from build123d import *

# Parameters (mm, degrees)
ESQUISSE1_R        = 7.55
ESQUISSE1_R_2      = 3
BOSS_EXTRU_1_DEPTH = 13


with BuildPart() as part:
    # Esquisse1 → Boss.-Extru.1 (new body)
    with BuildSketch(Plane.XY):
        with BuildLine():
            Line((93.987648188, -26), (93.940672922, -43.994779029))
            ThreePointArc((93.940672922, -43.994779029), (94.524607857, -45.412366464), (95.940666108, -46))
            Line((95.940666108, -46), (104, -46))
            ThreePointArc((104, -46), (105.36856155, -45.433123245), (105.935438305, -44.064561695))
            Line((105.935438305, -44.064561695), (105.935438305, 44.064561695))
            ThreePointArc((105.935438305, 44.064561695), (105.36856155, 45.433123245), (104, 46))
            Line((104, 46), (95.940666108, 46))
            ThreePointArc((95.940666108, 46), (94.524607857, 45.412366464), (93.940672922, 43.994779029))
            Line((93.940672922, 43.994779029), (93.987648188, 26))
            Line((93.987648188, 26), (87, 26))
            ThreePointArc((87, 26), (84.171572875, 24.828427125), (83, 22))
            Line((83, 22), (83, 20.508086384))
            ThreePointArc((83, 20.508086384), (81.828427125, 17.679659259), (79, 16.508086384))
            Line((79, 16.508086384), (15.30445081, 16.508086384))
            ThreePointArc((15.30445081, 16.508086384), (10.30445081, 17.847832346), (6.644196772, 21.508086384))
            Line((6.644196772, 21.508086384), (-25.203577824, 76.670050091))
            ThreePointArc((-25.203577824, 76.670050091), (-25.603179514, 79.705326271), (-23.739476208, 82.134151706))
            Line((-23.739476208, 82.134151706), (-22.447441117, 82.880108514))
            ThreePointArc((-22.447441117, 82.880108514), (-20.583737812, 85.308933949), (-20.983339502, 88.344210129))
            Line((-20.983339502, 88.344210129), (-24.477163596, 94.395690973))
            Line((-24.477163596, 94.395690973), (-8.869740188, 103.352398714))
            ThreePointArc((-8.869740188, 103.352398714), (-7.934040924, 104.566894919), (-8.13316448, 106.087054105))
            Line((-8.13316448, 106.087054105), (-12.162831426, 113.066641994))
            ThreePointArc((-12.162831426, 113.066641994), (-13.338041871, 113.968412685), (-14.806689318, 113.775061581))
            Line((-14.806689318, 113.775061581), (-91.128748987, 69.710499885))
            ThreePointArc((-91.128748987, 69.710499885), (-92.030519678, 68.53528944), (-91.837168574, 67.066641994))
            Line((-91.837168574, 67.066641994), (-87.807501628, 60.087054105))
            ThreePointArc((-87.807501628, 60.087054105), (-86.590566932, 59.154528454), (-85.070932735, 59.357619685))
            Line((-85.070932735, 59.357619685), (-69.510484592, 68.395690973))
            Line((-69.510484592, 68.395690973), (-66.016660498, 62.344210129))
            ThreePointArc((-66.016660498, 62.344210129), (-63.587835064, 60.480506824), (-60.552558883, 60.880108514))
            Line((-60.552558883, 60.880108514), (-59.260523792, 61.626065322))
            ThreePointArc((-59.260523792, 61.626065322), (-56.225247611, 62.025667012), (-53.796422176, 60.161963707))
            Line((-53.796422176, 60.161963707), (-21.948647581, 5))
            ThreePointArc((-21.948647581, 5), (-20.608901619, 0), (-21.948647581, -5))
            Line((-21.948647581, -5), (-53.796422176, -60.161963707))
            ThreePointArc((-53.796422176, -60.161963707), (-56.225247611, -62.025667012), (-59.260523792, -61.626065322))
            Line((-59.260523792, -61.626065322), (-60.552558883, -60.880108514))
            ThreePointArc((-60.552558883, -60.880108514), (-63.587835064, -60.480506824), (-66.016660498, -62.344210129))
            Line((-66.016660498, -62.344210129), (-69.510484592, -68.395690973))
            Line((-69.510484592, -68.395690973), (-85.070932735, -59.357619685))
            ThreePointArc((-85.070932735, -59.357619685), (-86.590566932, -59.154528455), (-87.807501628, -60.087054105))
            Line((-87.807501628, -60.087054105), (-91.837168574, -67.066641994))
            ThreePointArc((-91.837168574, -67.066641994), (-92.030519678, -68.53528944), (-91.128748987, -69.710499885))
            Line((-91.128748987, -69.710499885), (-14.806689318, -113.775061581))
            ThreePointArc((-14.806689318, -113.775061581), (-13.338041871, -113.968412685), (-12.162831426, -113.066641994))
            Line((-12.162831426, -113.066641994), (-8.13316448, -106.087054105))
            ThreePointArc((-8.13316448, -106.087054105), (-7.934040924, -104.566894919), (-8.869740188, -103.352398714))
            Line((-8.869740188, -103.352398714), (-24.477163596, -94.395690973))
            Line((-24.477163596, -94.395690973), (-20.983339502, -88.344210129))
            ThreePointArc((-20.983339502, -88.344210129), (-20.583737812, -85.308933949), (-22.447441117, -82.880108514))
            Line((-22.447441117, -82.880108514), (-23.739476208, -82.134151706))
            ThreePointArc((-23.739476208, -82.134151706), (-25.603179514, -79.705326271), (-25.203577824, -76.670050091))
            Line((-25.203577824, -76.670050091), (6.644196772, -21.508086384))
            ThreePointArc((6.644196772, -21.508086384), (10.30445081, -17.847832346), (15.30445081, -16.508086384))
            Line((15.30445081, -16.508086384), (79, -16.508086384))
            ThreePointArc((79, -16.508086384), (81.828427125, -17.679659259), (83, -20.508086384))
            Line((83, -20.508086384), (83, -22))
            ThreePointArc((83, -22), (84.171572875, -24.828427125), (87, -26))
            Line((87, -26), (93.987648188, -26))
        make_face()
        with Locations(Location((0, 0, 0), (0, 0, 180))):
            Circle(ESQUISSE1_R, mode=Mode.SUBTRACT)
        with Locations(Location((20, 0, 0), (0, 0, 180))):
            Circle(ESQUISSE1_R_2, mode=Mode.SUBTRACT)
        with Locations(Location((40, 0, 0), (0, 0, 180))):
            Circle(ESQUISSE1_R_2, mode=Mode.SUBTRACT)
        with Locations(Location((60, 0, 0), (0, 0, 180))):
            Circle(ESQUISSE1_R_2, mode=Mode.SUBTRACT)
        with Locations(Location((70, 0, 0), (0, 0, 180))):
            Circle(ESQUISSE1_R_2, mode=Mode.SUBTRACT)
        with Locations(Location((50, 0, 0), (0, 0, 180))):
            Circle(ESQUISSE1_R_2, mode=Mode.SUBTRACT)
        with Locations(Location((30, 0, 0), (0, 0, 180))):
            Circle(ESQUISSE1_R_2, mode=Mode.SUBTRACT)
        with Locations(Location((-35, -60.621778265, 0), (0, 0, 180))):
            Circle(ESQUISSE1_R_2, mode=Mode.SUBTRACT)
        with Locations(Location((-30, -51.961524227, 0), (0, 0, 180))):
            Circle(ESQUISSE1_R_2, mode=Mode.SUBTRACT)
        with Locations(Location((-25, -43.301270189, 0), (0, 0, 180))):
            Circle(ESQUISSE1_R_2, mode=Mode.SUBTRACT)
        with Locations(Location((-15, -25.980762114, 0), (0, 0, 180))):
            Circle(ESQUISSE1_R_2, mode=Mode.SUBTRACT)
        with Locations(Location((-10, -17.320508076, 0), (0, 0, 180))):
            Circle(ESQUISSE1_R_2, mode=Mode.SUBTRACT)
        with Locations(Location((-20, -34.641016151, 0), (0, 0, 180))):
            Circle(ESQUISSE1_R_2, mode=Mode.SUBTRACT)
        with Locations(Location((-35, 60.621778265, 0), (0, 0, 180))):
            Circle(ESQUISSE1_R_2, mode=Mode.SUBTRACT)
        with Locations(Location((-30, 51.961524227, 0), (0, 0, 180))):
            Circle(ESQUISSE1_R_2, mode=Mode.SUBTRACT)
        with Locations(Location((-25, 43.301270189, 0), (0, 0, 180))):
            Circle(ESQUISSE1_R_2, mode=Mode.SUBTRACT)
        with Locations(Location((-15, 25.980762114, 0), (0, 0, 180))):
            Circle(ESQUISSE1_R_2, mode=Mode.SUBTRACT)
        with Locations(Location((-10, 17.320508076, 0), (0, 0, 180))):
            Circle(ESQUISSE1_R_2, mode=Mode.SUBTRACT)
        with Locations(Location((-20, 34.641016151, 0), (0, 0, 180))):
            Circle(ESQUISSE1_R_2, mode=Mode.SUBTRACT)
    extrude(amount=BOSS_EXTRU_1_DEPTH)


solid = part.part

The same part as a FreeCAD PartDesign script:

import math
import FreeCAD as App
import Part
import Sketcher
from FreeCAD import Vector
Q = App.Units.Quantity

doc = App.newDocument("Part")
params = doc.addObject("Spreadsheet::Sheet", "Params")
for row, (alias, value) in enumerate([
    ("sketch1_diameter", "6 mm"),
    ("sketch1_radius", "2 mm"),
    ("sketch1_radius2", "4 mm"),
    ("sketch1_radius3", "10 mm"),
    ("sketch1_diameter2", "15.1 mm"),
    ("pad1_length", "13 mm"),
], start=1):
    params.set(f"A{row}", alias)
    params.set(f"B{row}", "=" + value)
    params.setAlias(f"B{row}", alias)

body = doc.addObject("PartDesign::Body", "Body")

# Sketch on XY plane
sketch1 = body.newObject("Sketcher::SketchObject", "Sketch")
sketch1.AttachmentSupport = (doc.getObject("XY_Plane"), [""])
sketch1.MapMode = "FlatFace"
sketch1.addGeometry([
    Part.LineSegment(Vector(93.987648, -26, 0), Vector(93.940673, -43.994779, 0)),  # 0
    Part.ArcOfCircle(Part.Circle(Vector(95.940666, -44, 0), Vector(0, 0, 1), 2), math.radians(179.85043), math.radians(270)),  # 1
    Part.LineSegment(Vector(95.940666, -46, 0), Vector(104, -46, 0)),  # 2
    Part.ArcOfCircle(Part.Circle(Vector(104, -44.064562, 0), Vector(0, 0, 1), 1.935438), math.radians(-90), math.radians(0)),  # 3
    Part.LineSegment(Vector(105.935438, -44.064562, 0), Vector(105.935438, 44.064562, 0)),  # 4
    Part.ArcOfCircle(Part.Circle(Vector(104, 44.064562, 0), Vector(0, 0, 1), 1.935438), math.radians(0), math.radians(90)),  # 5
    Part.LineSegment(Vector(104, 46, 0), Vector(95.940666, 46, 0)),  # 6
    Part.ArcOfCircle(Part.Circle(Vector(95.940666, 44, 0), Vector(0, 0, 1), 2), math.radians(90), math.radians(180.14957)),  # 7
    Part.LineSegment(Vector(93.940673, 43.994779, 0), Vector(93.987648, 26, 0)),  # 8
    Part.LineSegment(Vector(93.987648, 26, 0), Vector(87, 26, 0)),  # 9
    Part.ArcOfCircle(Part.Circle(Vector(87, 22, 0), Vector(0, 0, 1), 4), math.radians(90), math.radians(180)),  # 10
    Part.LineSegment(Vector(83, 22, 0), Vector(83, 20.508086, 0)),  # 11
    Part.ArcOfCircle(Part.Circle(Vector(79, 20.508086, 0), Vector(0, 0, 1), 4), math.radians(-90), math.radians(0)),  # 12
    Part.LineSegment(Vector(79, 16.508086, 0), Vector(15.304451, 16.508086, 0)),  # 13
    Part.ArcOfCircle(Part.Circle(Vector(15.304451, 26.508086, 0), Vector(0, 0, 1), 10), math.radians(-150), math.radians(-90)),  # 14
    Part.LineSegment(Vector(6.644197, 21.508086, 0), Vector(-25.203578, 76.67005, 0)),  # 15
    Part.ArcOfCircle(Part.Circle(Vector(-21.739476, 78.67005, 0), Vector(0, 0, 1), 4), math.radians(120), math.radians(210)),  # 16
    Part.LineSegment(Vector(-23.739476, 82.134152, 0), Vector(-22.447441, 82.880109, 0)),  # 17
    Part.ArcOfCircle(Part.Circle(Vector(-24.447441, 86.34421, 0), Vector(0, 0, 1), 4), math.radians(-60), math.radians(30)),  # 18
    Part.LineSegment(Vector(-20.98334, 88.34421, 0), Vector(-24.477164, 94.395691, 0)),  # 19
    Part.LineSegment(Vector(-24.477164, 94.395691, 0), Vector(-8.86974, 103.352399, 0)),  # 20
    Part.ArcOfCircle(Part.Circle(Vector(-9.865215, 105.087054, 0), Vector(0, 0, 1), 2), math.radians(-60.14957), math.radians(30)),  # 21
    Part.LineSegment(Vector(-8.133164, 106.087054, 0), Vector(-12.162831, 113.066642, 0)),  # 22
    Part.ArcOfCircle(Part.Circle(Vector(-13.83897, 112.098923, 0), Vector(0, 0, 1), 1.935438), math.radians(30), math.radians(120)),  # 23
    Part.LineSegment(Vector(-14.806689, 113.775062, 0), Vector(-91.128749, 69.7105, 0)),  # 24
    Part.ArcOfCircle(Part.Circle(Vector(-90.16103, 68.034361, 0), Vector(0, 0, 1), 1.935438), math.radians(120), math.radians(210)),  # 25
    Part.LineSegment(Vector(-91.837169, 67.066642, 0), Vector(-87.807502, 60.087054, 0)),  # 26
    Part.ArcOfCircle(Part.Circle(Vector(-86.075451, 61.087054, 0), Vector(0, 0, 1), 2), math.radians(-150), math.radians(-59.85043)),  # 27
    Part.LineSegment(Vector(-85.070933, 59.35762, 0), Vector(-69.510485, 68.395691, 0)),  # 28
    Part.LineSegment(Vector(-69.510485, 68.395691, 0), Vector(-66.01666, 62.34421, 0)),  # 29
    Part.ArcOfCircle(Part.Circle(Vector(-62.552559, 64.34421, 0), Vector(0, 0, 1), 4), math.radians(-150), math.radians(-60)),  # 30
    Part.LineSegment(Vector(-60.552559, 60.880109, 0), Vector(-59.260524, 61.626065, 0)),  # 31
    Part.ArcOfCircle(Part.Circle(Vector(-57.260524, 58.161964, 0), Vector(0, 0, 1), 4), math.radians(30), math.radians(120)),  # 32
    Part.LineSegment(Vector(-53.796422, 60.161964, 0), Vector(-21.948648, 5, 0)),  # 33
    Part.ArcOfCircle(Part.Circle(Vector(-30.608902, 0, 0), Vector(0, 0, 1), 10), math.radians(-30), math.radians(30)),  # 34
    Part.LineSegment(Vector(-21.948648, -5, 0), Vector(-53.796422, -60.161964, 0)),  # 35
    Part.ArcOfCircle(Part.Circle(Vector(-57.260524, -58.161964, 0), Vector(0, 0, 1), 4), math.radians(-120), math.radians(-30)),  # 36
    Part.LineSegment(Vector(-59.260524, -61.626065, 0), Vector(-60.552559, -60.880109, 0)),  # 37
    Part.ArcOfCircle(Part.Circle(Vector(-62.552559, -64.34421, 0), Vector(0, 0, 1), 4), math.radians(60), math.radians(150)),  # 38
    Part.LineSegment(Vector(-66.01666, -62.34421, 0), Vector(-69.510485, -68.395691, 0)),  # 39
    Part.LineSegment(Vector(-69.510485, -68.395691, 0), Vector(-85.070933, -59.35762, 0)),  # 40
    Part.ArcOfCircle(Part.Circle(Vector(-86.075451, -61.087054, 0), Vector(0, 0, 1), 2), math.radians(59.85043), math.radians(150)),  # 41
    Part.LineSegment(Vector(-87.807502, -60.087054, 0), Vector(-91.837169, -67.066642, 0)),  # 42
    Part.ArcOfCircle(Part.Circle(Vector(-90.16103, -68.034361, 0), Vector(0, 0, 1), 1.935438), math.radians(150), math.radians(240)),  # 43
    Part.LineSegment(Vector(-91.128749, -69.7105, 0), Vector(-14.806689, -113.775062, 0)),  # 44
    Part.ArcOfCircle(Part.Circle(Vector(-13.83897, -112.098923, 0), Vector(0, 0, 1), 1.935438), math.radians(-120), math.radians(-30)),  # 45
    Part.LineSegment(Vector(-12.162831, -113.066642, 0), Vector(-8.133164, -106.087054, 0)),  # 46
    Part.ArcOfCircle(Part.Circle(Vector(-9.865215, -105.087054, 0), Vector(0, 0, 1), 2), math.radians(-30), math.radians(60.14957)),  # 47
    Part.LineSegment(Vector(-8.86974, -103.352399, 0), Vector(-24.477164, -94.395691, 0)),  # 48
    Part.LineSegment(Vector(-24.477164, -94.395691, 0), Vector(-20.98334, -88.34421, 0)),  # 49
    Part.ArcOfCircle(Part.Circle(Vector(-24.447441, -86.34421, 0), Vector(0, 0, 1), 4), math.radians(-30), math.radians(60)),  # 50
    Part.LineSegment(Vector(-22.447441, -82.880109, 0), Vector(-23.739476, -82.134152, 0)),  # 51
    Part.ArcOfCircle(Part.Circle(Vector(-21.739476, -78.67005, 0), Vector(0, 0, 1), 4), math.radians(150), math.radians(240)),  # 52
    Part.LineSegment(Vector(-25.203578, -76.67005, 0), Vector(6.644197, -21.508086, 0)),  # 53
    Part.ArcOfCircle(Part.Circle(Vector(15.304451, -26.508086, 0), Vector(0, 0, 1), 10), math.radians(90), math.radians(150)),  # 54
    Part.LineSegment(Vector(15.304451, -16.508086, 0), Vector(79, -16.508086, 0)),  # 55
    Part.ArcOfCircle(Part.Circle(Vector(79, -20.508086, 0), Vector(0, 0, 1), 4), math.radians(0), math.radians(90)),  # 56
    Part.LineSegment(Vector(83, -20.508086, 0), Vector(83, -22, 0)),  # 57
    Part.ArcOfCircle(Part.Circle(Vector(87, -22, 0), Vector(0, 0, 1), 4), math.radians(180), math.radians(270)),  # 58
    Part.LineSegment(Vector(87, -26, 0), Vector(93.987648, -26, 0)),  # 59
    Part.Circle(Vector(-35, -60.621778, 0), Vector(0, 0, 1), 3),  # 60
    Part.Circle(Vector(-30, -51.961524, 0), Vector(0, 0, 1), 3),  # 61
    Part.Circle(Vector(-25, -43.30127, 0), Vector(0, 0, 1), 3),  # 62
    Part.Circle(Vector(-20, -34.641016, 0), Vector(0, 0, 1), 3),  # 63
    Part.Circle(Vector(-15, -25.980762, 0), Vector(0, 0, 1), 3),  # 64
    Part.Circle(Vector(-10, -17.320508, 0), Vector(0, 0, 1), 3),  # 65
    Part.Circle(Vector(0, 0, 0), Vector(0, 0, 1), 7.55),  # 66
    Part.Circle(Vector(20, 0, 0), Vector(0, 0, 1), 3),  # 67
    Part.Circle(Vector(30, 0, 0), Vector(0, 0, 1), 3),  # 68
    Part.Circle(Vector(40, 0, 0), Vector(0, 0, 1), 3),  # 69
    Part.Circle(Vector(50, 0, 0), Vector(0, 0, 1), 3),  # 70
    Part.Circle(Vector(60, 0, 0), Vector(0, 0, 1), 3),  # 71
    Part.Circle(Vector(70, 0, 0), Vector(0, 0, 1), 3),  # 72
    Part.Circle(Vector(-15, 25.980762, 0), Vector(0, 0, 1), 3),  # 73
    Part.Circle(Vector(-10, 17.320508, 0), Vector(0, 0, 1), 3),  # 74
    Part.Circle(Vector(-25, 43.30127, 0), Vector(0, 0, 1), 3),  # 75
    Part.Circle(Vector(-20, 34.641016, 0), Vector(0, 0, 1), 3),  # 76
    Part.Circle(Vector(-30, 51.961524, 0), Vector(0, 0, 1), 3),  # 77
    Part.Circle(Vector(-35, 60.621778, 0), Vector(0, 0, 1), 3),  # 78
], False)
sketch1.addConstraint([
    Sketcher.Constraint("Tangent", 0, 2, 1, 1),
    Sketcher.Constraint("Tangent", 1, 2, 2, 1),
    Sketcher.Constraint("Tangent", 2, 2, 3, 1),
    Sketcher.Constraint("Tangent", 3, 2, 4, 1),
    Sketcher.Constraint("Tangent", 4, 2, 5, 1),
    Sketcher.Constraint("Tangent", 5, 2, 6, 1),
    Sketcher.Constraint("Tangent", 6, 2, 7, 1),
    Sketcher.Constraint("Tangent", 7, 2, 8, 1),
    Sketcher.Constraint("Coincident", 8, 2, 9, 1),
    Sketcher.Constraint("Tangent", 9, 2, 10, 1),
    Sketcher.Constraint("Tangent", 10, 2, 11, 1),
    Sketcher.Constraint("Tangent", 11, 2, 12, 2),
    Sketcher.Constraint("Tangent", 12, 1, 13, 1),
    Sketcher.Constraint("Tangent", 13, 2, 14, 2),
    Sketcher.Constraint("Tangent", 14, 1, 15, 1),
    Sketcher.Constraint("Tangent", 15, 2, 16, 2),
    Sketcher.Constraint("Tangent", 16, 1, 17, 1),
    Sketcher.Constraint("Tangent", 17, 2, 18, 1),
    Sketcher.Constraint("Tangent", 18, 2, 19, 1),
    Sketcher.Constraint("Coincident", 19, 2, 20, 1),
    Sketcher.Constraint("Tangent", 20, 2, 21, 1),
    Sketcher.Constraint("Tangent", 21, 2, 22, 1),
    Sketcher.Constraint("Tangent", 22, 2, 23, 1),
    Sketcher.Constraint("Tangent", 23, 2, 24, 1),
    Sketcher.Constraint("Tangent", 24, 2, 25, 1),
    Sketcher.Constraint("Tangent", 25, 2, 26, 1),
    Sketcher.Constraint("Tangent", 26, 2, 27, 1),
    Sketcher.Constraint("Tangent", 27, 2, 28, 1),
    Sketcher.Constraint("Coincident", 28, 2, 29, 1),
    Sketcher.Constraint("Tangent", 29, 2, 30, 1),
    Sketcher.Constraint("Tangent", 30, 2, 31, 1),
    Sketcher.Constraint("Tangent", 31, 2, 32, 2),
    Sketcher.Constraint("Tangent", 32, 1, 33, 1),
    Sketcher.Constraint("Tangent", 33, 2, 34, 2),
    Sketcher.Constraint("Tangent", 34, 1, 35, 1),
    Sketcher.Constraint("Tangent", 35, 2, 36, 2),
    Sketcher.Constraint("Tangent", 36, 1, 37, 1),
    Sketcher.Constraint("Tangent", 37, 2, 38, 1),
    Sketcher.Constraint("Tangent", 38, 2, 39, 1),
    Sketcher.Constraint("Coincident", 39, 2, 40, 1),
    Sketcher.Constraint("Tangent", 40, 2, 41, 1),
    Sketcher.Constraint("Tangent", 41, 2, 42, 1),
    Sketcher.Constraint("Tangent", 42, 2, 43, 1),
    Sketcher.Constraint("Tangent", 43, 2, 44, 1),
    Sketcher.Constraint("Tangent", 44, 2, 45, 1),
    Sketcher.Constraint("Tangent", 45, 2, 46, 1),
    Sketcher.Constraint("Tangent", 46, 2, 47, 1),
    Sketcher.Constraint("Tangent", 47, 2, 48, 1),
    Sketcher.Constraint("Coincident", 48, 2, 49, 1),
    Sketcher.Constraint("Tangent", 49, 2, 50, 1),
    Sketcher.Constraint("Tangent", 50, 2, 51, 1),
    Sketcher.Constraint("Tangent", 51, 2, 52, 2),
    Sketcher.Constraint("Tangent", 52, 1, 53, 1),
    Sketcher.Constraint("Tangent", 53, 2, 54, 2),
    Sketcher.Constraint("Tangent", 54, 1, 55, 1),
    Sketcher.Constraint("Tangent", 55, 2, 56, 2),
    Sketcher.Constraint("Tangent", 56, 1, 57, 1),
    Sketcher.Constraint("Tangent", 57, 2, 58, 1),
    Sketcher.Constraint("Tangent", 58, 2, 59, 1),
    Sketcher.Constraint("Coincident", 59, 2, 0, 1),
    Sketcher.Constraint("Horizontal", 2),
    Sketcher.Constraint("Vertical", 4),
    Sketcher.Constraint("Horizontal", 6),
    Sketcher.Constraint("Horizontal", 9),
    Sketcher.Constraint("Vertical", 11),
    Sketcher.Constraint("Horizontal", 13),
    Sketcher.Constraint("Horizontal", 55),
    Sketcher.Constraint("Vertical", 57),
    Sketcher.Constraint("Horizontal", 59),
    Sketcher.Constraint("Coincident", 66, 3, -1, 1),
    Sketcher.Constraint("Equal", 3, 5),
    Sketcher.Constraint("Equal", 1, 7),
    Sketcher.Constraint("Equal", 10, 12),
    Sketcher.Constraint("Equal", 12, 16),
    Sketcher.Constraint("Equal", 16, 18),
    Sketcher.Constraint("Equal", 7, 21),
    Sketcher.Constraint("Equal", 5, 23),
    Sketcher.Constraint("Equal", 23, 25),
    Sketcher.Constraint("Equal", 21, 27),
    Sketcher.Constraint("Equal", 18, 30),
    Sketcher.Constraint("Equal", 30, 32),
    Sketcher.Constraint("Equal", 14, 34),
    Sketcher.Constraint("Equal", 32, 36),
    Sketcher.Constraint("Equal", 36, 38),
    Sketcher.Constraint("Equal", 27, 41),
    Sketcher.Constraint("Equal", 25, 43),
    Sketcher.Constraint("Equal", 43, 45),
    Sketcher.Constraint("Equal", 41, 47),
    Sketcher.Constraint("Equal", 38, 50),
    Sketcher.Constraint("Equal", 50, 52),
    Sketcher.Constraint("Equal", 34, 54),
    Sketcher.Constraint("Equal", 52, 56),
    Sketcher.Constraint("Equal", 56, 58),
    Sketcher.Constraint("Equal", 60, 61),
    Sketcher.Constraint("Equal", 61, 62),
    Sketcher.Constraint("Equal", 62, 63),
    Sketcher.Constraint("Equal", 63, 64),
    Sketcher.Constraint("Equal", 64, 65),
    Sketcher.Constraint("Equal", 65, 67),
    Sketcher.Constraint("Equal", 67, 68),
    Sketcher.Constraint("Equal", 68, 69),
    Sketcher.Constraint("Equal", 69, 70),
    Sketcher.Constraint("Equal", 70, 71),
    Sketcher.Constraint("Equal", 71, 72),
    Sketcher.Constraint("Equal", 72, 73),
    Sketcher.Constraint("Equal", 73, 74),
    Sketcher.Constraint("Equal", 74, 75),
    Sketcher.Constraint("Equal", 75, 76),
    Sketcher.Constraint("Equal", 76, 77),
    Sketcher.Constraint("Equal", 77, 78),
    Sketcher.Constraint("Symmetric", 1, 3, 7, 3, -1),
    Sketcher.Constraint("Symmetric", 32, 3, 36, 3, -1),
    Sketcher.Constraint("Symmetric", 30, 3, 38, 3, -1),
    Sketcher.Constraint("Symmetric", 27, 3, 41, 3, -1),
    Sketcher.Constraint("Symmetric", 25, 3, 43, 3, -1),
    Sketcher.Constraint("Symmetric", 23, 3, 45, 3, -1),
    Sketcher.Constraint("Symmetric", 21, 3, 47, 3, -1),
    Sketcher.Constraint("Symmetric", 18, 3, 50, 3, -1),
    Sketcher.Constraint("Symmetric", 16, 3, 52, 3, -1),
    Sketcher.Constraint("Symmetric", 14, 3, 54, 3, -1),
    Sketcher.Constraint("Symmetric", 10, 3, 58, 3, -1),
    Sketcher.Constraint("Symmetric", 64, 3, 73, 3, -1),
    Sketcher.Constraint("Symmetric", 65, 3, 74, 3, -1),
    Sketcher.Constraint("Symmetric", 62, 3, 75, 3, -1),
    Sketcher.Constraint("Symmetric", 63, 3, 76, 3, -1),
    Sketcher.Constraint("Symmetric", 61, 3, 77, 3, -1),
    Sketcher.Constraint("Symmetric", 60, 3, 78, 3, -1),
    Sketcher.Constraint("Symmetric", 28, 2, 39, 2, -1),
    Sketcher.Constraint("Symmetric", 19, 2, 48, 2, -1),
    Sketcher.Constraint("PointOnObject", 34, 3, -1),
    Sketcher.Constraint("PointOnObject", 67, 3, -1),
    Sketcher.Constraint("PointOnObject", 68, 3, -1),
    Sketcher.Constraint("PointOnObject", 69, 3, -1),
    Sketcher.Constraint("PointOnObject", 70, 3, -1),
    Sketcher.Constraint("PointOnObject", 71, 3, -1),
    Sketcher.Constraint("PointOnObject", 72, 3, -1),
    Sketcher.Constraint("Perpendicular", 15, 17),
    Sketcher.Constraint("Perpendicular", 17, 19),
    Sketcher.Constraint("Parallel", 19, 22),
    Sketcher.Constraint("Perpendicular", 22, 24),
    Sketcher.Constraint("Perpendicular", 24, 26),
    Sketcher.Constraint("Parallel", 26, 29),
    Sketcher.Constraint("Perpendicular", 29, 31),
    Sketcher.Constraint("Perpendicular", 31, 33),
    Sketcher.Constraint("Vertical", 8, 2, 59, 2),
    Sketcher.Constraint("Equal", 8, 20),
    Sketcher.Constraint("Equal", 22, 26),
    Sketcher.Constraint("Equal", 20, 28),
    Sketcher.Constraint("Equal", 19, 29),
    Sketcher.Constraint("Equal", 17, 31),
    Sketcher.Constraint("Equal", 15, 33),
    Sketcher.Constraint("Diameter", 60, 6.0),
    Sketcher.Constraint("Radius", 1, 2.0),
    Sketcher.Constraint("Radius", 10, 4.0),
    Sketcher.Constraint("Radius", 14, 10.0),
    Sketcher.Constraint("Diameter", 66, 15.1),
    Sketcher.Constraint("Angle", 15, Q("120 deg")),
    Sketcher.Constraint("DistanceY", 1, 3, -1, 1, 44.0),
    Sketcher.Constraint("DistanceX", -1, 1, 3, 3, 104.0),
    Sketcher.Constraint("DistanceX", -1, 1, 10, 3, 87.0),
    Sketcher.Constraint("DistanceY", -1, 1, 10, 3, 22.0),
    Sketcher.Constraint("DistanceX", 60, 3, -1, 1, 35.0),
    Sketcher.Constraint("DistanceX", 61, 3, -1, 1, 30.0),
    Sketcher.Constraint("DistanceX", 62, 3, -1, 1, 25.0),
    Sketcher.Constraint("DistanceX", 63, 3, -1, 1, 20.0),
    Sketcher.Constraint("DistanceX", 64, 3, -1, 1, 15.0),
    Sketcher.Constraint("DistanceX", 65, 3, -1, 1, 10.0),
    Sketcher.Constraint("DistanceX", -1, 1, 67, 3, 20.0),
    Sketcher.Constraint("DistanceX", -1, 1, 68, 3, 30.0),
    Sketcher.Constraint("DistanceX", -1, 1, 69, 3, 40.0),
    Sketcher.Constraint("DistanceX", -1, 1, 70, 3, 50.0),
    Sketcher.Constraint("DistanceX", -1, 1, 71, 3, 60.0),
    Sketcher.Constraint("DistanceX", -1, 1, 72, 3, 70.0),
    Sketcher.Constraint("Radius", 3, 1.935438),
    Sketcher.Constraint("DistanceX", 9, 2, 9, 1, 6.987648),
    Sketcher.Constraint("DistanceX", 13, 2, 13, 1, 63.695549),
    Sketcher.Constraint("DistanceX", 34, 3, -1, 1, 30.608902),
    Sketcher.Constraint("DistanceY", -1, 1, 20, 2, 103.352399),
    Sketcher.Constraint("DistanceY", -1, 1, 24, 2, 69.7105),
    Sketcher.Constraint("DistanceX", 26, 2, -1, 1, 87.807502),
    Sketcher.Constraint("Distance", 0, 17.99484),
    Sketcher.Constraint("Distance", 15, 63.695549),
    Sketcher.Constraint("Distance", 19, 6.987648),
    Sketcher.Constraint("DistanceY", 11, 2, 11, 1, 1.491914),
    Sketcher.Constraint("DistanceY", 60, 3, -1, 1, 60.621778),
    Sketcher.Constraint("DistanceY", 62, 3, -1, 1, 43.30127),
    Sketcher.Constraint("DistanceY", 65, 3, -1, 1, 17.320508),
    Sketcher.Constraint("DistanceY", 61, 3, -1, 1, 51.961524),
    Sketcher.Constraint("DistanceY", 63, 3, -1, 1, 34.641016),
    Sketcher.Constraint("DistanceY", 64, 3, -1, 1, 25.980762),
])
sketch1.setExpression("Constraints[151]", "Params.sketch1_diameter")
sketch1.setExpression("Constraints[152]", "Params.sketch1_radius")
sketch1.setExpression("Constraints[153]", "Params.sketch1_radius2")
sketch1.setExpression("Constraints[154]", "Params.sketch1_radius3")
sketch1.setExpression("Constraints[155]", "Params.sketch1_diameter2")
pad1 = body.newObject("PartDesign::Pad", "Pad")
pad1.Profile = sketch1
pad1.setExpression("Length", "Params.pad1_length")

doc.recompute()
